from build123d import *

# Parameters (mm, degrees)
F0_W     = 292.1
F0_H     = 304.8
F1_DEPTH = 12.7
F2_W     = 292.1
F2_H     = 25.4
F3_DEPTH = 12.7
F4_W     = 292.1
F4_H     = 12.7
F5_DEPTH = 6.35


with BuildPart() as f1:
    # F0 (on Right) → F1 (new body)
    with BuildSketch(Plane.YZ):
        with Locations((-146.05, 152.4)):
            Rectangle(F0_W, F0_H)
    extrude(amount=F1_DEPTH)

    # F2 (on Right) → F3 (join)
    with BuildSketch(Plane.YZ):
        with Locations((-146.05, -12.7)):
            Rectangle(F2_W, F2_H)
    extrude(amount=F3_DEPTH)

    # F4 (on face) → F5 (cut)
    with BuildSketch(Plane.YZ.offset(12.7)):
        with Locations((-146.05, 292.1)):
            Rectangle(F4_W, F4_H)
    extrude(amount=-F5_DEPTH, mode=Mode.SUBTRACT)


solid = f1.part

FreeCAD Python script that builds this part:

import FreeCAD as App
import Part
import Sketcher
from FreeCAD import Vector
Q = App.Units.Quantity


def add_polygon(sketch, points):
    """Adds a closed chain of lines whose ends are joined by coincident constraints."""
    first, n = sketch.GeometryCount, len(points)
    for a, b in zip(points, points[1:] + points[:1]):
        sketch.addGeometry(Part.LineSegment(App.Vector(*a, 0), App.Vector(*b, 0)), False)
    for i in range(n):
        sketch.addConstraint(Sketcher.Constraint("Coincident", first + i, 2, first + (i + 1) % n, 1))

doc = App.newDocument("Part")
body = doc.addObject("PartDesign::Body", "Body")

# Sketch on YZ plane
sketch1 = body.newObject("Sketcher::SketchObject", "Sketch")
sketch1.AttachmentSupport = (doc.getObject("YZ_Plane"), [""])
sketch1.MapMode = "FlatFace"
add_polygon(sketch1, [(-292, 305), (-292, 0), (0, 0), (0, 305)])  # lines 0-3
sketch1.addConstraint(Sketcher.Constraint("Vertical", 0))
sketch1.addConstraint(Sketcher.Constraint("Horizontal", 1))
sketch1.addConstraint(Sketcher.Constraint("Vertical", 2))
sketch1.addConstraint(Sketcher.Constraint("Horizontal", 3))
sketch1.addConstraint(Sketcher.Constraint("Coincident", 1, 2, -1, 1))
sketch1.addConstraint(Sketcher.Constraint("DistanceY", 0, 2, 0, 1, Q("12 in")))
sketch1.addConstraint(Sketcher.Constraint("DistanceX", 1, 1, 1, 2, Q("11.5 in")))
pad1 = body.newObject("PartDesign::Pad", "Pad")
pad1.Profile = sketch1
pad1.Length = Q("0.5 in")

# Sketch on YZ plane
sketch2 = body.newObject("Sketcher::SketchObject", "Sketch001")
sketch2.AttachmentSupport = (doc.getObject("YZ_Plane"), [""])
sketch2.MapMode = "FlatFace"
add_polygon(sketch2, [(-292, 0), (-292, -25), (0, -25), (0, 0)])  # lines 0-3
sketch2.addConstraint(Sketcher.Constraint("Vertical", 0))
sketch2.addConstraint(Sketcher.Constraint("Horizontal", 1))
sketch2.addConstraint(Sketcher.Constraint("Vertical", 2))
sketch2.addConstraint(Sketcher.Constraint("Horizontal", 3))
sketch2.addConstraint(Sketcher.Constraint("Coincident", 2, 2, -1, 1))
sketch2.addConstraint(Sketcher.Constraint("DistanceY", 0, 2, 0, 1, Q("1 in")))
sketch2.addConstraint(Sketcher.Constraint("DistanceX", 1, 1, 1, 2, Q("11.5 in")))
pad2 = body.newObject("PartDesign::Pad", "Pad001")
pad2.Profile = sketch2
pad2.Length = Q("0.5 in")

# Sketch on YZ plane
sketch3 = body.newObject("Sketcher::SketchObject", "Sketch002")
sketch3.AttachmentSupport = (doc.getObject("YZ_Plane"), [""])
sketch3.MapMode = "FlatFace"
sketch3.AttachmentOffset = App.Placement(Vector(0, 0, 0.5 * 25.4), App.Rotation())
add_polygon(sketch3, [(-292, 298), (-292, 286), (0, 286), (0, 298)])  # lines 0-3
sketch3.addConstraint(Sketcher.Constraint("Vertical", 0))
sketch3.addConstraint(Sketcher.Constraint("Horizontal", 1))
sketch3.addConstraint(Sketcher.Constraint("Vertical", 2))
sketch3.addConstraint(Sketcher.Constraint("Horizontal", 3))
sketch3.addConstraint(Sketcher.Constraint("PointOnObject", 1, 2, -2))
sketch3.addConstraint(Sketcher.Constraint("DistanceX", 1, 1, 1, 2, Q("11.5 in")))
sketch3.addConstraint(Sketcher.Constraint("DistanceY", 0, 2, 0, 1, Q("0.5 in")))
sketch3.addConstraint(Sketcher.Constraint("DistanceY", -1, 1, 0, 2, Q("11.25 in")))
pocket1 = body.newObject("PartDesign::Pocket", "Pocket")
pocket1.Profile = sketch3
pocket1.Length = Q("0.25 in")

doc.recompute()
